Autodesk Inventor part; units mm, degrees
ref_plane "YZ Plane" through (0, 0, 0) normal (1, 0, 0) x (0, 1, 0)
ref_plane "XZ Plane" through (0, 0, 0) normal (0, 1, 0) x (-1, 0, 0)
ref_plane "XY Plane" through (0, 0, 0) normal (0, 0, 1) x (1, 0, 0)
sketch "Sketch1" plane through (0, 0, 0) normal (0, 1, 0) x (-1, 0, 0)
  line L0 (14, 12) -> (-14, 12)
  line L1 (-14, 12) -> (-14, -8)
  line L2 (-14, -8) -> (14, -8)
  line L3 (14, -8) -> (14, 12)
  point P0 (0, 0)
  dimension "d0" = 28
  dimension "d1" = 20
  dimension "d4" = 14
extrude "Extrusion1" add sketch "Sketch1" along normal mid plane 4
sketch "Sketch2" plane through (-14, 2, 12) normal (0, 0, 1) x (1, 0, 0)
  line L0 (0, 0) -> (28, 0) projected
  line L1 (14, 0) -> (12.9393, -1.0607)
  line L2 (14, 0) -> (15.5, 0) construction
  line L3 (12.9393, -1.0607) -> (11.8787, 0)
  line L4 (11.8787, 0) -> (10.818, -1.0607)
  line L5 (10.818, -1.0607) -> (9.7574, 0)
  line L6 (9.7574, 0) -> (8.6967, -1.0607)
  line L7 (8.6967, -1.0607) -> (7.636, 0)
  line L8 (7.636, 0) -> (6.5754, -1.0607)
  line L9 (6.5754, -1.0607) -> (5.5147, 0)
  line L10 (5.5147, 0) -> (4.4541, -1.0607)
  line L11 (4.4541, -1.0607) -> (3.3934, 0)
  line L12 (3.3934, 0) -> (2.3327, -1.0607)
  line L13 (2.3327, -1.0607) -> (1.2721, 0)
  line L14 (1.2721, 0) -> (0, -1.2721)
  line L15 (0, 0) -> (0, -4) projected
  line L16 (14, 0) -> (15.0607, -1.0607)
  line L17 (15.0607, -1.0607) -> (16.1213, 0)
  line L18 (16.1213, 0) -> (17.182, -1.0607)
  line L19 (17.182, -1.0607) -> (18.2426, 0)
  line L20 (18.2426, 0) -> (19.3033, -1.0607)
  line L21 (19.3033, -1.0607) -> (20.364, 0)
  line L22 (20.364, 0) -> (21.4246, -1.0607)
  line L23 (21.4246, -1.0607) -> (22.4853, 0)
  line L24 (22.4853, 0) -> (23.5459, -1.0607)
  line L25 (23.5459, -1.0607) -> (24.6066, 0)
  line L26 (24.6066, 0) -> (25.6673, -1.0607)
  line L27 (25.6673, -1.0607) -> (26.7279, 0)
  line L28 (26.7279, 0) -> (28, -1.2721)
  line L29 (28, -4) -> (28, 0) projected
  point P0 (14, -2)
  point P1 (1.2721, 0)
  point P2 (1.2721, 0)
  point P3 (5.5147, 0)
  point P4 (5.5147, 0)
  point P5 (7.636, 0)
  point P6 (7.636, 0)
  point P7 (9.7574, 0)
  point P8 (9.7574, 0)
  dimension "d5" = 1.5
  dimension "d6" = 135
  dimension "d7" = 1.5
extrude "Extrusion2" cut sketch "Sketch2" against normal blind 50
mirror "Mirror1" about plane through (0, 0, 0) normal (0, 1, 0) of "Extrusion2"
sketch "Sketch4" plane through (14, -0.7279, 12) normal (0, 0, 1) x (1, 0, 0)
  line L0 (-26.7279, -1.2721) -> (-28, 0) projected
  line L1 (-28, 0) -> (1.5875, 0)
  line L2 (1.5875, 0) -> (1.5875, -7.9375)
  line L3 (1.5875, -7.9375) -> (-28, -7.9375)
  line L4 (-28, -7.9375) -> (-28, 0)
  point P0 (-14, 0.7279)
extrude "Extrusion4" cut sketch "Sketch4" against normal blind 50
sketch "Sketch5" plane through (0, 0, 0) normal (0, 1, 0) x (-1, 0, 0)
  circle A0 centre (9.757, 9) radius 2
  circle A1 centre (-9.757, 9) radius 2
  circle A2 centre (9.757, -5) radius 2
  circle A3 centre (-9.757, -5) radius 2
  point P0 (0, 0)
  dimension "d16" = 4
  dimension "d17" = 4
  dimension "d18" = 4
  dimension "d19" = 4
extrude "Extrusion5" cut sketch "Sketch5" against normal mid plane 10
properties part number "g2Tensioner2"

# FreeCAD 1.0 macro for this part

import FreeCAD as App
import Part
import Sketcher

V = App.Vector
Q = App.Units.Quantity


def add_polygon(sketch, points):
    """Adds a closed chain of lines whose ends are joined by coincident constraints."""
    first, n = sketch.GeometryCount, len(points)
    for a, b in zip(points, points[1:] + points[:1]):
        sketch.addGeometry(Part.LineSegment(App.Vector(*a, 0), App.Vector(*b, 0)), False)
    for i in range(n):
        sketch.addConstraint(Sketcher.Constraint("Coincident", first + i, 2, first + (i + 1) % n, 1))

doc = App.newDocument("Part")
body = doc.addObject("PartDesign::Body", "Body")

# Sketch on XZ plane
sketch1 = body.newObject("Sketcher::SketchObject", "Sketch")
sketch1.AttachmentSupport = (doc.getObject("XZ_Plane"), [""])
sketch1.MapMode = "FlatFace"
add_polygon(sketch1, [(-14, -8), (-14, 12), (14, 12), (14, -8)])  # lines 0-3
sketch1.addConstraint([
    Sketcher.Constraint("Vertical", 0),
    Sketcher.Constraint("Horizontal", 1),
    Sketcher.Constraint("Vertical", 2),
    Sketcher.Constraint("Horizontal", 3),
    Sketcher.Constraint("DistanceX", 1, 1, 1, 2, Q("28 mm")),
    Sketcher.Constraint("DistanceY", 0, 1, 0, 2, Q("20 mm")),
    Sketcher.Constraint("DistanceX", 0, 2, -1, 1, Q("14 mm")),
    Sketcher.Constraint("DistanceY", -1, 1, 0, 2, Q("12 mm")),
])
pad1 = body.newObject("PartDesign::Pad", "Pad")
pad1.Profile = sketch1
pad1.Length = 4
pad1.Midplane = True

# Sketch on XY plane
sketch2 = body.newObject("Sketcher::SketchObject", "Sketch001")
sketch2.AttachmentSupport = (doc.getObject("XY_Plane"), [""])
sketch2.MapMode = "FlatFace"
sketch2.AttachmentOffset = App.Placement(V(0, 0, 12), App.Rotation())
add_polygon(sketch2, [(14, 2), (12.7, 2), (14, 0.7)])  # lines 0-2
add_polygon(sketch2, [(12.7, 2), (10.6, 2), (11.7, 0.9)])  # lines 3-5
add_polygon(sketch2, [(10.6, 2), (8.5, 2), (9.5, 0.9)])  # lines 6-8
add_polygon(sketch2, [(8.5, 2), (6.4, 2), (7.4, 0.9)])  # lines 9-11
add_polygon(sketch2, [(6.4, 2), (4.2, 2), (5.3, 0.9)])  # lines 12-14
add_polygon(sketch2, [(4.2, 2), (2.1, 2), (3.2, 0.9)])  # lines 15-17
add_polygon(sketch2, [(2.1, 2), (0, 2), (1.1, 0.9)])  # lines 18-20
add_polygon(sketch2, [(0, 2), (-2.1, 2), (-1.1, 0.9)])  # lines 21-23
add_polygon(sketch2, [(-2.1, 2), (-4.2, 2), (-3.2, 0.9)])  # lines 24-26
add_polygon(sketch2, [(-4.2, 2), (-6.4, 2), (-5.3, 0.9)])  # lines 27-29
add_polygon(sketch2, [(-6.4, 2), (-8.5, 2), (-7.4, 0.9)])  # lines 30-32
add_polygon(sketch2, [(-8.5, 2), (-10.6, 2), (-9.5, 0.9)])  # lines 33-35
add_polygon(sketch2, [(-10.6, 2), (-12.7, 2), (-11.7, 0.9)])  # lines 36-38
add_polygon(sketch2, [(-12.7, 2), (-14, 2), (-14, 0.7)])  # lines 39-41
sketch2.addConstraint([
    Sketcher.Constraint("Horizontal", 0),
    Sketcher.Constraint("Vertical", 2),
    Sketcher.Constraint("Horizontal", 3),
    Sketcher.Constraint("Horizontal", 6),
    Sketcher.Constraint("Horizontal", 9),
    Sketcher.Constraint("Horizontal", 12),
    Sketcher.Constraint("Horizontal", 15),
    Sketcher.Constraint("Horizontal", 18),
    Sketcher.Constraint("Horizontal", 21),
    Sketcher.Constraint("Horizontal", 24),
    Sketcher.Constraint("Horizontal", 27),
    Sketcher.Constraint("Horizontal", 30),
    Sketcher.Constraint("Horizontal", 33),
    Sketcher.Constraint("Horizontal", 36),
    Sketcher.Constraint("Horizontal", 39),
    Sketcher.Constraint("Vertical", 40),
    Sketcher.Constraint("Coincident", 5, 2, 0, 2),
    Sketcher.Constraint("Coincident", 8, 2, 3, 2),
    Sketcher.Constraint("Coincident", 11, 2, 6, 2),
    Sketcher.Constraint("Coincident", 14, 2, 9, 2),
    Sketcher.Constraint("Coincident", 17, 2, 12, 2),
    Sketcher.Constraint("Coincident", 20, 2, 15, 2),
    Sketcher.Constraint("Coincident", 23, 2, 18, 2),
    Sketcher.Constraint("Coincident", 26, 2, 21, 2),
    Sketcher.Constraint("Coincident", 29, 2, 24, 2),
    Sketcher.Constraint("Coincident", 32, 2, 27, 2),
    Sketcher.Constraint("Coincident", 35, 2, 30, 2),
    Sketcher.Constraint("Coincident", 38, 2, 33, 2),
    Sketcher.Constraint("Coincident", 41, 2, 36, 2),
    Sketcher.Constraint("Symmetric", 19, 2, 22, 2, -2),
    Sketcher.Constraint("Symmetric", 16, 2, 25, 2, -2),
    Sketcher.Constraint("Symmetric", 13, 2, 28, 2, -2),
    Sketcher.Constraint("Symmetric", 10, 2, 31, 2, -2),
    Sketcher.Constraint("Symmetric", 7, 2, 34, 2, -2),
    Sketcher.Constraint("Symmetric", 4, 2, 37, 2, -2),
    Sketcher.Constraint("Symmetric", 1, 2, 40, 2, -2),
    Sketcher.Constraint("PointOnObject", 18, 2, -2),
    Sketcher.Constraint("Parallel", 1, 4),
    Sketcher.Constraint("Perpendicular", 4, 5),
    Sketcher.Constraint("Perpendicular", 5, 7),
    Sketcher.Constraint("Perpendicular", 7, 8),
    Sketcher.Constraint("Perpendicular", 8, 10),
    Sketcher.Constraint("Perpendicular", 10, 11),
    Sketcher.Constraint("Perpendicular", 11, 13),
    Sketcher.Constraint("Perpendicular", 13, 14),
    Sketcher.Constraint("Perpendicular", 14, 16),
    Sketcher.Constraint("Perpendicular", 16, 17),
    Sketcher.Constraint("Perpendicular", 17, 19),
    Sketcher.Constraint("Perpendicular", 19, 20),
    Sketcher.Constraint("Perpendicular", 20, 22),
    Sketcher.Constraint("Perpendicular", 22, 23),
    Sketcher.Constraint("Perpendicular", 23, 25),
    Sketcher.Constraint("Perpendicular", 26, 28),
    Sketcher.Constraint("Perpendicular", 29, 31),
    Sketcher.Constraint("Perpendicular", 32, 34),
    Sketcher.Constraint("Perpendicular", 35, 37),
    Sketcher.Constraint("Horizontal", 4, 2, 7, 2),
    Sketcher.Constraint("Horizontal", 7, 2, 10, 2),
    Sketcher.Constraint("Horizontal", 10, 2, 13, 2),
    Sketcher.Constraint("Horizontal", 13, 2, 16, 2),
    Sketcher.Constraint("Horizontal", 16, 2, 19, 2),
    Sketcher.Constraint("Distance", 4, Q("1.5 mm")),
    Sketcher.Constraint("DistanceY", -1, 1, 0, 2, Q("2 mm")),
    Sketcher.Constraint("DistanceX", -1, 1, 1, 2, Q("14 mm")),
])
pocket1 = body.newObject("PartDesign::Pocket", "Pocket")
pocket1.Profile = sketch2
pocket1.Length = 50
doc.recompute()

mirrored = body.newObject("PartDesign::Mirrored", "Mirrored")
mirrored.Originals = [pocket1]
mirrored.MirrorPlane = (doc.getObject("XZ_Plane"), [""])
body.Tip = mirrored

# Sketch on XY plane
sketch3 = body.newObject("Sketcher::SketchObject", "Sketch002")
sketch3.AttachmentSupport = (doc.getObject("XY_Plane"), [""])
sketch3.MapMode = "FlatFace"
sketch3.AttachmentOffset = App.Placement(V(0, 0, 12), App.Rotation())
add_polygon(sketch3, [(16, -1), (-14, -1), (-14, -9), (16, -9)])  # lines 0-3
sketch3.addConstraint([
    Sketcher.Constraint("Horizontal", 0),
    Sketcher.Constraint("Vertical", 1),
    Sketcher.Constraint("Horizontal", 2),
    Sketcher.Constraint("Vertical", 3),
    Sketcher.Constraint("DistanceX", 0, 2, -1, 1, Q("14 mm")),
    Sketcher.Constraint("DistanceX", 0, 2, 0, 1, Q("29.5875 mm")),
    Sketcher.Constraint("DistanceY", 1, 2, 1, 1, Q("7.9375 mm")),
    Sketcher.Constraint("DistanceY", 0, 2, -1, 1, Q("0.728 mm")),
])
pocket2 = body.newObject("PartDesign::Pocket", "Pocket001")
pocket2.Profile = sketch3
pocket2.Length = 50

# Sketch on XZ plane
sketch4 = body.newObject("Sketcher::SketchObject", "Sketch003")
sketch4.AttachmentSupport = (doc.getObject("XZ_Plane"), [""])
sketch4.MapMode = "FlatFace"
sketch4.addGeometry([
    Part.Circle(V(-9.8, 9, 0), V(0, 0, 1), 2),
    Part.Circle(V(9.8, 9, 0), V(0, 0, 1), 2),
    Part.Circle(V(-9.8, -5, 0), V(0, 0, 1), 2),
    Part.Circle(V(9.8, -5, 0), V(0, 0, 1), 2),
], False)
sketch4.addConstraint([
    Sketcher.Constraint("Equal", 0, 1),
    Sketcher.Constraint("Equal", 1, 2),
    Sketcher.Constraint("Equal", 2, 3),
    Sketcher.Constraint("Symmetric", 0, 3, 1, 3, -2),
    Sketcher.Constraint("Symmetric", 2, 3, 3, 3, -2),
    Sketcher.Constraint("Vertical", 0, 3, 2, 3),
    Sketcher.Constraint("Diameter", 0, Q("4 mm")),
    Sketcher.Constraint("DistanceY", -1, 1, 0, 3, Q("9 mm")),
    Sketcher.Constraint("DistanceY", 2, 3, -1, 1, Q("5 mm")),
    Sketcher.Constraint("DistanceX", 0, 3, -1, 1, Q("9.757 mm")),
])
pocket3 = body.newObject("PartDesign::Pocket", "Pocket002")
pocket3.Profile = sketch4
pocket3.Length = 10
pocket3.Midplane = True

doc.recompute()
